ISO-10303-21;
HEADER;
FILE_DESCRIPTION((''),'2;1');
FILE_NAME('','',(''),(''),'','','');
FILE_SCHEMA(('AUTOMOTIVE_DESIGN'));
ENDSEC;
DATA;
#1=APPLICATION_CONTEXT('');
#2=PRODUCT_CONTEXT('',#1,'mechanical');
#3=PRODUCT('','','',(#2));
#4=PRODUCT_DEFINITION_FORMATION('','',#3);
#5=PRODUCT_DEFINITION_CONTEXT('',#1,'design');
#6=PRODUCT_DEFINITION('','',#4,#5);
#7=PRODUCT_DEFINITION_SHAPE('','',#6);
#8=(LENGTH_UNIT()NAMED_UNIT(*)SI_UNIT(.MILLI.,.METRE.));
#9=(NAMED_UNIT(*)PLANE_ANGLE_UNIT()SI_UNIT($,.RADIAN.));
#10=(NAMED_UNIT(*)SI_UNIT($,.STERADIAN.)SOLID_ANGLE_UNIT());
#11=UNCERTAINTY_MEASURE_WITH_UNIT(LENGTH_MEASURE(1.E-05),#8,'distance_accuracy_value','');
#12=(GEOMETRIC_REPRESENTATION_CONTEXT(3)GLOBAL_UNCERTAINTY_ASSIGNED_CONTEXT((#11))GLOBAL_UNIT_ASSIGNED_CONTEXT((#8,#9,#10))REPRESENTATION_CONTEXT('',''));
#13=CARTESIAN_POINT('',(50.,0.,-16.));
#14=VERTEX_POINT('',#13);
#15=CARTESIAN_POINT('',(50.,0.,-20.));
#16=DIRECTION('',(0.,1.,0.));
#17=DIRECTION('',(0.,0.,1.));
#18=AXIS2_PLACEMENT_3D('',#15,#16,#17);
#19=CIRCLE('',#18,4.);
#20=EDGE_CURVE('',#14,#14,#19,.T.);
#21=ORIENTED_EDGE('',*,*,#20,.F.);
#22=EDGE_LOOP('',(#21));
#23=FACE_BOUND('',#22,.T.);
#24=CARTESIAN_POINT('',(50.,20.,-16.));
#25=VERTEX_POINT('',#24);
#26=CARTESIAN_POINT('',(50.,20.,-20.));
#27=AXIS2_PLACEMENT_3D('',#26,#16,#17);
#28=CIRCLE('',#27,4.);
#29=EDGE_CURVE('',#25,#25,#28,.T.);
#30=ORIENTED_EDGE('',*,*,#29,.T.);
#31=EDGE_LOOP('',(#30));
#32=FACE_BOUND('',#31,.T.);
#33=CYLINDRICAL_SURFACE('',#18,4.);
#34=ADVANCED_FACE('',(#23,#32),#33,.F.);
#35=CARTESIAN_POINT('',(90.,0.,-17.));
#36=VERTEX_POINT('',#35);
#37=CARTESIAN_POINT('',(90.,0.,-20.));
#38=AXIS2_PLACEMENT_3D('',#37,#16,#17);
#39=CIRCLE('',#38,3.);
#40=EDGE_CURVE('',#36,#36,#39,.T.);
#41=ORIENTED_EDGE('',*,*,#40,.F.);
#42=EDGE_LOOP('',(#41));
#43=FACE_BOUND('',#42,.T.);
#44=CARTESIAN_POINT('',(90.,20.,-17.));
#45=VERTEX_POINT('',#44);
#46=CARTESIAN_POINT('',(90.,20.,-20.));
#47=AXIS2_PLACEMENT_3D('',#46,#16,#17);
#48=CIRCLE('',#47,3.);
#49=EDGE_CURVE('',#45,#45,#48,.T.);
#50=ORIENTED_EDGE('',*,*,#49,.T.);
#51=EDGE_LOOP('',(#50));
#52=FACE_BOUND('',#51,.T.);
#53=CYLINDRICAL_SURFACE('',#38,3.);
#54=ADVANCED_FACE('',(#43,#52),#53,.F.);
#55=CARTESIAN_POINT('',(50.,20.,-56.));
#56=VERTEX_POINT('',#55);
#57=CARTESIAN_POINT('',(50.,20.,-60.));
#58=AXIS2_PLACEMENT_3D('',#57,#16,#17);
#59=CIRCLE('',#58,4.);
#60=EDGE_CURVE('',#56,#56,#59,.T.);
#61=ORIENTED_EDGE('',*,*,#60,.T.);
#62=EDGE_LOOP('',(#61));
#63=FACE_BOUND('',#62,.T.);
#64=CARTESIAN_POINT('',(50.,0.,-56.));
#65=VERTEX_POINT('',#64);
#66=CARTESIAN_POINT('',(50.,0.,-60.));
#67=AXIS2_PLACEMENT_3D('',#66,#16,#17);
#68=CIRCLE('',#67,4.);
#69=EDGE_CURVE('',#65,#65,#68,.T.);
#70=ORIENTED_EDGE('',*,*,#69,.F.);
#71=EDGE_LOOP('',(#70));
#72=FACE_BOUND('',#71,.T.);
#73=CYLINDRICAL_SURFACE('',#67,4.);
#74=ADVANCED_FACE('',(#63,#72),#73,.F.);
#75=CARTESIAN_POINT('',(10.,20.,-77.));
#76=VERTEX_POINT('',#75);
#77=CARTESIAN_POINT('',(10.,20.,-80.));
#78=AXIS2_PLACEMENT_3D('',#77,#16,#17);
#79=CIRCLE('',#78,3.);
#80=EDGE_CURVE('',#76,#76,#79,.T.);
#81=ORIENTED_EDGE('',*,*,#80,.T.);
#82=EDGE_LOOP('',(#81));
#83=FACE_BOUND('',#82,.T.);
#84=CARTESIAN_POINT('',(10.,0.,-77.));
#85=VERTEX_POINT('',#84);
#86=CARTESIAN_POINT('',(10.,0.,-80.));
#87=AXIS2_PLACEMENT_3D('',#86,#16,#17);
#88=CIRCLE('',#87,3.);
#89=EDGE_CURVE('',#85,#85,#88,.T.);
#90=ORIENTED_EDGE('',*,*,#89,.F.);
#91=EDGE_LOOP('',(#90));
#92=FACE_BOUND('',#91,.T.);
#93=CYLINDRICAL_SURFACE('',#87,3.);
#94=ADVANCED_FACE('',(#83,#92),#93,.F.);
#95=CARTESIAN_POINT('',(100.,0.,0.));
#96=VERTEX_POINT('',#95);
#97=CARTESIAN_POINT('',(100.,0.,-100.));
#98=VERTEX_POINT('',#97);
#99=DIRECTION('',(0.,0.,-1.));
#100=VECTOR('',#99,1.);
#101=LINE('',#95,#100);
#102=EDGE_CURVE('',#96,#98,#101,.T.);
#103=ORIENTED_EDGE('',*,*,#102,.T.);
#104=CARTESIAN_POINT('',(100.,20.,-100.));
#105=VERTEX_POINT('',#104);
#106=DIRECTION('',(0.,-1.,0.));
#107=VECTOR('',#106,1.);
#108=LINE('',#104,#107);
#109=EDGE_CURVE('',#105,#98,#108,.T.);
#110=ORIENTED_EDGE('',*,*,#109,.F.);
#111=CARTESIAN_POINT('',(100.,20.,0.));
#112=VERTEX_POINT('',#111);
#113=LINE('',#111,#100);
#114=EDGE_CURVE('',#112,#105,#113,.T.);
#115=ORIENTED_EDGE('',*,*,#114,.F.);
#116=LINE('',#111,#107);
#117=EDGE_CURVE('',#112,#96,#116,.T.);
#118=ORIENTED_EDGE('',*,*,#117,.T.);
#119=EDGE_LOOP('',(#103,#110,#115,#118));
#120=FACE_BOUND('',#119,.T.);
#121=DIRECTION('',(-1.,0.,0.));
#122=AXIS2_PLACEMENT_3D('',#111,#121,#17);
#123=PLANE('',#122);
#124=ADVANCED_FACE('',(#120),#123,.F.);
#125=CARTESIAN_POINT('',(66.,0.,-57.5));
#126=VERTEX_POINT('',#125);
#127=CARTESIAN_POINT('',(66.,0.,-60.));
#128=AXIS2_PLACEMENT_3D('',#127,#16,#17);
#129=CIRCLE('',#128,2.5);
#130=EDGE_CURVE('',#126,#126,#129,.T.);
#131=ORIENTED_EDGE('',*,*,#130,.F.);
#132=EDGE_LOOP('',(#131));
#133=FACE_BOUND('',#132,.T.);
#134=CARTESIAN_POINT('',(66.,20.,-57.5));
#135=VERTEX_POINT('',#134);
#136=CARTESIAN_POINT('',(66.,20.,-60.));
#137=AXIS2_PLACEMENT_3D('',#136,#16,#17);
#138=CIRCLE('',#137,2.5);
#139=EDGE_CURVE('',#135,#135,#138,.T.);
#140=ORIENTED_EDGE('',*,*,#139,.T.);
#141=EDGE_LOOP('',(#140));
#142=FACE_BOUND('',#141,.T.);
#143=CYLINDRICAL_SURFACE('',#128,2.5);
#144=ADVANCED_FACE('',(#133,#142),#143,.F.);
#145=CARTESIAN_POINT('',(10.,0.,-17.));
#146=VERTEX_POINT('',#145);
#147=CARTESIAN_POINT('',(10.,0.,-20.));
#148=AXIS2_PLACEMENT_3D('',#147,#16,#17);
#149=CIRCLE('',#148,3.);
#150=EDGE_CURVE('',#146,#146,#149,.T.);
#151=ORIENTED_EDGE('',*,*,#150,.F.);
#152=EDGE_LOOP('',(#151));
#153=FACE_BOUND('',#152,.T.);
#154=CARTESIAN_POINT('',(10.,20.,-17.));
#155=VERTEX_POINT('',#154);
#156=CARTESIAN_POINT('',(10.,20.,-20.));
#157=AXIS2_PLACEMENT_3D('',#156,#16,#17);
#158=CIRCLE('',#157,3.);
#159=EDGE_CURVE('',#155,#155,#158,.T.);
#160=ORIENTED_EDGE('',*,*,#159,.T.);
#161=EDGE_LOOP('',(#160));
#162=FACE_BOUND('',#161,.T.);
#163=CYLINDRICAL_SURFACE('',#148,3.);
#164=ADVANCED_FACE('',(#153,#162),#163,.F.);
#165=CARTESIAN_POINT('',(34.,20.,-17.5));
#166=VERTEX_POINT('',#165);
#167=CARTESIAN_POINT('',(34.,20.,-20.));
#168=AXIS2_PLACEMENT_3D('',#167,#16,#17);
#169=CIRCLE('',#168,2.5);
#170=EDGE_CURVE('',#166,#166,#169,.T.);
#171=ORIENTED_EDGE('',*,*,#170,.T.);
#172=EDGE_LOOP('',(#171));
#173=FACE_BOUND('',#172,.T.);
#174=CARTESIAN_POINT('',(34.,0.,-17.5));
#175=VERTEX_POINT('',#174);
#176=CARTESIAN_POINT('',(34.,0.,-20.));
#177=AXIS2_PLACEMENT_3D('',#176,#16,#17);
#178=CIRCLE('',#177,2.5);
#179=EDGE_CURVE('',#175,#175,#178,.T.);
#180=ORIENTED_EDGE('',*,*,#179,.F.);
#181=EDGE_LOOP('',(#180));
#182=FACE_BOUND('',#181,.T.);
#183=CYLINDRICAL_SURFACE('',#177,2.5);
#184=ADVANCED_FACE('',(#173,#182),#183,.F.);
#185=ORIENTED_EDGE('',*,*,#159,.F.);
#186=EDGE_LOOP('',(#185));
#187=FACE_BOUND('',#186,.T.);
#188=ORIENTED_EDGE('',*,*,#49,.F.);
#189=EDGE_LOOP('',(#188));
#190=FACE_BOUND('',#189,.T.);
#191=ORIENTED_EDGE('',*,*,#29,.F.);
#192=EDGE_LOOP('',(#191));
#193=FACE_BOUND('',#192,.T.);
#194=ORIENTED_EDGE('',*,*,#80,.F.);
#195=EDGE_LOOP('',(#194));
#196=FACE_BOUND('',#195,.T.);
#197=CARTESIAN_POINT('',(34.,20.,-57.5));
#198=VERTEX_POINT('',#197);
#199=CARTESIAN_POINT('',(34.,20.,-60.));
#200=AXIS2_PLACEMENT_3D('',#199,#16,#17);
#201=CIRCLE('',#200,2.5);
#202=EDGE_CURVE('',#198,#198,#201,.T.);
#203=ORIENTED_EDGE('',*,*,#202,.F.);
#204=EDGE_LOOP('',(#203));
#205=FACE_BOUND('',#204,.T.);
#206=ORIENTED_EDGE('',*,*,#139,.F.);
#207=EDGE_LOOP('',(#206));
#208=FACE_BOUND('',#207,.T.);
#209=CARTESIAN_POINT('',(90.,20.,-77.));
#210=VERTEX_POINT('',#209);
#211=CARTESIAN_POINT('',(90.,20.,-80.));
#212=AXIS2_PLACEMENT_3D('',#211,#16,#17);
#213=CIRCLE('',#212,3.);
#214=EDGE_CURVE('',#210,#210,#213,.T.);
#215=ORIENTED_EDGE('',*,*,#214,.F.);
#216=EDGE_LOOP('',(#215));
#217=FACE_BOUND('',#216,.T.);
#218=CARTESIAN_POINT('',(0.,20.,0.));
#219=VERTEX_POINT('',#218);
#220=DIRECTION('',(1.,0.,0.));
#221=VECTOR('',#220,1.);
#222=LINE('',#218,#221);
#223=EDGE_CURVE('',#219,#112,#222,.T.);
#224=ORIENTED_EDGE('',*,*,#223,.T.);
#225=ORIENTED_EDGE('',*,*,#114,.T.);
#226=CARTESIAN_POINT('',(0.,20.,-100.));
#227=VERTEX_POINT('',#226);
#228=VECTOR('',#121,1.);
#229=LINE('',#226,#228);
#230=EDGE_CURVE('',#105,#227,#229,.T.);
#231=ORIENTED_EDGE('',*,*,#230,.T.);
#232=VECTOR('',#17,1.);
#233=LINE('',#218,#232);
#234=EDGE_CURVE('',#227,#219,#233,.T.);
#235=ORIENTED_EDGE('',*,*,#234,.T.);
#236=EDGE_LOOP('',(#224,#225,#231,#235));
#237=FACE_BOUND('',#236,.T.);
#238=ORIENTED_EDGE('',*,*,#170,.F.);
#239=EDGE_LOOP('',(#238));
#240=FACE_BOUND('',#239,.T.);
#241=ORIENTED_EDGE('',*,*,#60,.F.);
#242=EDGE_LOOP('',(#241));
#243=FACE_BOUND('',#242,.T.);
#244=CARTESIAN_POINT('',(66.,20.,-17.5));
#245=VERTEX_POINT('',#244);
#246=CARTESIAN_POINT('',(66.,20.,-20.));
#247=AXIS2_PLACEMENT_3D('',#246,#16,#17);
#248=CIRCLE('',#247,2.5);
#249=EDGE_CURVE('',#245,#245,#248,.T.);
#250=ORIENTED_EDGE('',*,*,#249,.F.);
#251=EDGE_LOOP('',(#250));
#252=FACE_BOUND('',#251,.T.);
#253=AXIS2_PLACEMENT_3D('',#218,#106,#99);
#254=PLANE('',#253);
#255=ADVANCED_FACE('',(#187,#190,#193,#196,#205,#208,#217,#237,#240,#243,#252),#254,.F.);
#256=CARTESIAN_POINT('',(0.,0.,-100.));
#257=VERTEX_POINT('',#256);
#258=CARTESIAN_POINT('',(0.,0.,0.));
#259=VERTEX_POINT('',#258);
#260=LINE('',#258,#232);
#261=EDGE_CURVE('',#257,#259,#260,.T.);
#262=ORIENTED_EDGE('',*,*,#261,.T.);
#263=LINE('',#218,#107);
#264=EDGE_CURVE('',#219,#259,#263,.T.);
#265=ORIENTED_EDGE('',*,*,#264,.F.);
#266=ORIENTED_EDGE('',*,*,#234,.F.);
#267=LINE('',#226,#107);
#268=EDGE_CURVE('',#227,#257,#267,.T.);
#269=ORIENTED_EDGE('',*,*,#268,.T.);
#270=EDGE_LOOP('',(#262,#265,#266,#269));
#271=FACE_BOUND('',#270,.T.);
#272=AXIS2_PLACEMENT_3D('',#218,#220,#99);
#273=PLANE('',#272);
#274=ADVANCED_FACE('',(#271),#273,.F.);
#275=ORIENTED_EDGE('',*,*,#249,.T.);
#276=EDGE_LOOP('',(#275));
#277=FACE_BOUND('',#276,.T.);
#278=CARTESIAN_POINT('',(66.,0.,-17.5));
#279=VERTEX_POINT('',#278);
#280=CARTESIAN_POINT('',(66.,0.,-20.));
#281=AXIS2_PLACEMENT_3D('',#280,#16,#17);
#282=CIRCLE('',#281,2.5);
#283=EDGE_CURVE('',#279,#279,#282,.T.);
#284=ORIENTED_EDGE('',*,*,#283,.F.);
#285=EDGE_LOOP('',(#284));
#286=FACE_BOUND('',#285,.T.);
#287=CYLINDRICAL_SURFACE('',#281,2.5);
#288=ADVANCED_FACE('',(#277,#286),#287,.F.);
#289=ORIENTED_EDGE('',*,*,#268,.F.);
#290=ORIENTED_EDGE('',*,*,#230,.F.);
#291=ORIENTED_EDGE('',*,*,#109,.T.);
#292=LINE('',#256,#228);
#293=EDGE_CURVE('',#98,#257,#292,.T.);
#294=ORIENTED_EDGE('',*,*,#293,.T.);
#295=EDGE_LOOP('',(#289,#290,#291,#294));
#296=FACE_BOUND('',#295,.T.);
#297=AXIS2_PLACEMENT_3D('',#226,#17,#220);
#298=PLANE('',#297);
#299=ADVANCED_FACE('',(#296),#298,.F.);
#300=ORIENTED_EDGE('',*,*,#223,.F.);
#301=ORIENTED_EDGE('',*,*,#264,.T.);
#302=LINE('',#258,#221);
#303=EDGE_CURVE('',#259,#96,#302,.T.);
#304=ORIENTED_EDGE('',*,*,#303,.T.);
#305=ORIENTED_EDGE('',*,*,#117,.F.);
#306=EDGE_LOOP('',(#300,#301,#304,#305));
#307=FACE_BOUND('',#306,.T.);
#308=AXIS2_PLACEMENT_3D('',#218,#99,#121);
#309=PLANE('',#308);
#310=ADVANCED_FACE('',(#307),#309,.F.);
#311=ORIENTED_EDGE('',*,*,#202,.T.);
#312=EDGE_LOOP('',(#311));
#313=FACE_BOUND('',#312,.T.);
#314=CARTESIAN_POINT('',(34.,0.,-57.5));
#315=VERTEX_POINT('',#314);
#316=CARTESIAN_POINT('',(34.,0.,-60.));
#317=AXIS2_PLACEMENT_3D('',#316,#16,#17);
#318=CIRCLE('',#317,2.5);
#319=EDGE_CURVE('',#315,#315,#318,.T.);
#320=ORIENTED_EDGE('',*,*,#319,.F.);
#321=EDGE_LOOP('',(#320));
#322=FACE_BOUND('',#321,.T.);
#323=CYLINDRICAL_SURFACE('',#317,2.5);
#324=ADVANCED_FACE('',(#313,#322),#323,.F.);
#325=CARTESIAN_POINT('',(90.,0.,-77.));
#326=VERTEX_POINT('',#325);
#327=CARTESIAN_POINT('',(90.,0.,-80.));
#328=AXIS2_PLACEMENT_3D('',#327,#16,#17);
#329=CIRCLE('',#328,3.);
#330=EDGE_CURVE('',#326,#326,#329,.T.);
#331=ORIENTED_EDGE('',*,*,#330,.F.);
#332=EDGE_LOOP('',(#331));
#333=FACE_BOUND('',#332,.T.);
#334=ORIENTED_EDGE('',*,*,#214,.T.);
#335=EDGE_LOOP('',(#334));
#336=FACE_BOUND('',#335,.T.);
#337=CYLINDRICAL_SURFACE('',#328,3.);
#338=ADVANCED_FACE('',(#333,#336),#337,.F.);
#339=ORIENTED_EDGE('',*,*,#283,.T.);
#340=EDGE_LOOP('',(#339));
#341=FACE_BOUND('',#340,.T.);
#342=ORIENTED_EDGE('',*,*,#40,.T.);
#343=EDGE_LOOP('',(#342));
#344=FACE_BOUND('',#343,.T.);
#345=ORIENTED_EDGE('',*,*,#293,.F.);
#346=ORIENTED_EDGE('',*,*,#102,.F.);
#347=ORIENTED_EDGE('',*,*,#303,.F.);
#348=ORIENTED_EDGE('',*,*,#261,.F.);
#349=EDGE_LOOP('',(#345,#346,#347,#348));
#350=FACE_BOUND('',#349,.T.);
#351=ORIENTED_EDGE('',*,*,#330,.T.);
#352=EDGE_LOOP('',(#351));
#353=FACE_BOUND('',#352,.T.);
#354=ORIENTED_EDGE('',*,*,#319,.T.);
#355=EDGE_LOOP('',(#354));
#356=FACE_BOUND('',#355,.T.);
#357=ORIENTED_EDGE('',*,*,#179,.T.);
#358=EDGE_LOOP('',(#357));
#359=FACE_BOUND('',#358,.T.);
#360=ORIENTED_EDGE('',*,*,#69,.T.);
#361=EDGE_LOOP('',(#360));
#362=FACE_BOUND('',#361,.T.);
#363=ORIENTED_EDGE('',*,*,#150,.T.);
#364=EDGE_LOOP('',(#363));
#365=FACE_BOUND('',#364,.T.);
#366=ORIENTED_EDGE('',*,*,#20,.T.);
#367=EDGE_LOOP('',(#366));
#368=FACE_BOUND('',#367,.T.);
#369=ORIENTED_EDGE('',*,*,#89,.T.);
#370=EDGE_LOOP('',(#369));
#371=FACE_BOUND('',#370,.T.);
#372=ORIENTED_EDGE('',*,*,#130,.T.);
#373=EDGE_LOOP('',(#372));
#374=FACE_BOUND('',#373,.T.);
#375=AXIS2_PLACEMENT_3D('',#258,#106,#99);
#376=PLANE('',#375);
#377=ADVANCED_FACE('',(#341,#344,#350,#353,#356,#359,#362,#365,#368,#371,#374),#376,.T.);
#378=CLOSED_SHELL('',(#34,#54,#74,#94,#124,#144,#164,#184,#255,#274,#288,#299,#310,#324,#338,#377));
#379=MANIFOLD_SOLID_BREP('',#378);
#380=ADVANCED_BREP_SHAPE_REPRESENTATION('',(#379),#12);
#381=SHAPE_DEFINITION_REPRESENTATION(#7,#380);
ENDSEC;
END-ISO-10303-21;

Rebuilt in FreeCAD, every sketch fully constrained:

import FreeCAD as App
import Part
import Sketcher
Q = App.Units.Quantity

doc = App.newDocument("Part")
body = doc.addObject("PartDesign::Body", "Body")

sketch1 = body.newObject("Sketcher::SketchObject", "Sketch")
sketch1.AttachmentSupport = (doc.getObject("XZ_Plane"), [""])
sketch1.MapMode = "FlatFace"
sketch1.addGeometry(Part.LineSegment(App.Vector(0, -100, 0), App.Vector(0, 0, 0)), False)
sketch1.addGeometry(Part.LineSegment(App.Vector(0, 0, 0), App.Vector(100, 0, 0)), False)
sketch1.addGeometry(Part.LineSegment(App.Vector(100, 0, 0), App.Vector(100, -100, 0)), False)
sketch1.addGeometry(Part.LineSegment(App.Vector(100, -100, 0), App.Vector(0, -100, 0)), False)
sketch1.addConstraint(Sketcher.Constraint("Coincident", 0, 2, 1, 1))
sketch1.addConstraint(Sketcher.Constraint("Coincident", 1, 2, 2, 1))
sketch1.addConstraint(Sketcher.Constraint("Coincident", 2, 2, 3, 1))
sketch1.addConstraint(Sketcher.Constraint("Coincident", 3, 2, 0, 1))
sketch1.addConstraint(Sketcher.Constraint("Vertical", 0))
sketch1.addConstraint(Sketcher.Constraint("Horizontal", 1))
sketch1.addConstraint(Sketcher.Constraint("Vertical", 2))
sketch1.addConstraint(Sketcher.Constraint("Horizontal", 3))
sketch1.addConstraint(Sketcher.Constraint("Coincident", 0, 2, -1, 1))
sketch1.addConstraint(Sketcher.Constraint("Equal", 3, 0))
sketch1.addConstraint(Sketcher.Constraint("DistanceX", 1, 1, 1, 2, Q("100 mm")))
pad1 = body.newObject("PartDesign::Pad", "Pad")
pad1.Profile = sketch1
pad1.Length = 20
pad1.Reversed = True

sketch2 = body.newObject("Sketcher::SketchObject", "Sketch001")
sketch2.AttachmentSupport = (doc.getObject("XZ_Plane"), [""])
sketch2.MapMode = "FlatFace"
sketch2.AttachmentOffset = App.Placement(App.Vector(0, 0, -20), App.Rotation())
sketch2.addGeometry(Part.Circle(App.Vector(10, -80, 0), App.Vector(0, 0, 1), 3), False)
sketch2.addGeometry(Part.Circle(App.Vector(90, -80, 0), App.Vector(0, 0, 1), 3), False)
sketch2.addGeometry(Part.Circle(App.Vector(34, -60, 0), App.Vector(0, 0, 1), 2.5), False)
sketch2.addGeometry(Part.Circle(App.Vector(50, -20, 0), App.Vector(0, 0, 1), 4), False)
sketch2.addGeometry(Part.Circle(App.Vector(66, -60, 0), App.Vector(0, 0, 1), 2.5), False)
sketch2.addGeometry(Part.Circle(App.Vector(10, -20, 0), App.Vector(0, 0, 1), 3), False)
sketch2.addGeometry(Part.Circle(App.Vector(50, -60, 0), App.Vector(0, 0, 1), 4), False)
sketch2.addGeometry(Part.Circle(App.Vector(90, -20, 0), App.Vector(0, 0, 1), 3), False)
sketch2.addGeometry(Part.Circle(App.Vector(34, -20, 0), App.Vector(0, 0, 1), 2.5), False)
sketch2.addGeometry(Part.Circle(App.Vector(66, -20, 0), App.Vector(0, 0, 1), 2.5), False)
sketch2.addConstraint(Sketcher.Constraint("Equal", 0, 1))
sketch2.addConstraint(Sketcher.Constraint("Equal", 2, 4))
sketch2.addConstraint(Sketcher.Constraint("Equal", 1, 5))
sketch2.addConstraint(Sketcher.Constraint("Equal", 3, 6))
sketch2.addConstraint(Sketcher.Constraint("Equal", 5, 7))
sketch2.addConstraint(Sketcher.Constraint("Equal", 4, 8))
sketch2.addConstraint(Sketcher.Constraint("Equal", 8, 9))
sketch2.addConstraint(Sketcher.Constraint("Horizontal", 0, 3, 1, 3))
sketch2.addConstraint(Sketcher.Constraint("Horizontal", 2, 3, 4, 3))
sketch2.addConstraint(Sketcher.Constraint("Horizontal", 3, 3, 5, 3))
sketch2.addConstraint(Sketcher.Constraint("Horizontal", 4, 3, 6, 3))
sketch2.addConstraint(Sketcher.Constraint("Horizontal", 5, 3, 7, 3))
sketch2.addConstraint(Sketcher.Constraint("Horizontal", 7, 3, 8, 3))
sketch2.addConstraint(Sketcher.Constraint("Horizontal", 8, 3, 9, 3))
sketch2.addConstraint(Sketcher.Constraint("Vertical", 0, 3, 5, 3))
sketch2.addConstraint(Sketcher.Constraint("Vertical", 3, 3, 6, 3))
sketch2.addConstraint(Sketcher.Constraint("Vertical", 1, 3, 7, 3))
sketch2.addConstraint(Sketcher.Constraint("Vertical", 2, 3, 8, 3))
sketch2.addConstraint(Sketcher.Constraint("Vertical", 4, 3, 9, 3))
sketch2.addConstraint(Sketcher.Constraint("Diameter", 0, Q("6 mm")))
sketch2.addConstraint(Sketcher.Constraint("Diameter", 2, Q("5 mm")))
sketch2.addConstraint(Sketcher.Constraint("Diameter", 3, Q("8 mm")))
sketch2.addConstraint(Sketcher.Constraint("DistanceX", -1, 1, 0, 3, Q("10 mm")))
sketch2.addConstraint(Sketcher.Constraint("DistanceY", 0, 3, -1, 1, Q("80 mm")))
sketch2.addConstraint(Sketcher.Constraint("DistanceX", -1, 1, 1, 3, Q("90 mm")))
sketch2.addConstraint(Sketcher.Constraint("DistanceX", -1, 1, 2, 3, Q("34 mm")))
sketch2.addConstraint(Sketcher.Constraint("DistanceY", 2, 3, -1, 1, Q("60 mm")))
sketch2.addConstraint(Sketcher.Constraint("DistanceX", -1, 1, 3, 3, Q("50 mm")))
sketch2.addConstraint(Sketcher.Constraint("DistanceY", 3, 3, -1, 1, Q("20 mm")))
sketch2.addConstraint(Sketcher.Constraint("DistanceX", -1, 1, 4, 3, Q("66 mm")))
pocket1 = body.newObject("PartDesign::Pocket", "Pocket")
pocket1.Profile = sketch2
pocket1.Length = 20
pocket1.Reversed = True

doc.recompute()
